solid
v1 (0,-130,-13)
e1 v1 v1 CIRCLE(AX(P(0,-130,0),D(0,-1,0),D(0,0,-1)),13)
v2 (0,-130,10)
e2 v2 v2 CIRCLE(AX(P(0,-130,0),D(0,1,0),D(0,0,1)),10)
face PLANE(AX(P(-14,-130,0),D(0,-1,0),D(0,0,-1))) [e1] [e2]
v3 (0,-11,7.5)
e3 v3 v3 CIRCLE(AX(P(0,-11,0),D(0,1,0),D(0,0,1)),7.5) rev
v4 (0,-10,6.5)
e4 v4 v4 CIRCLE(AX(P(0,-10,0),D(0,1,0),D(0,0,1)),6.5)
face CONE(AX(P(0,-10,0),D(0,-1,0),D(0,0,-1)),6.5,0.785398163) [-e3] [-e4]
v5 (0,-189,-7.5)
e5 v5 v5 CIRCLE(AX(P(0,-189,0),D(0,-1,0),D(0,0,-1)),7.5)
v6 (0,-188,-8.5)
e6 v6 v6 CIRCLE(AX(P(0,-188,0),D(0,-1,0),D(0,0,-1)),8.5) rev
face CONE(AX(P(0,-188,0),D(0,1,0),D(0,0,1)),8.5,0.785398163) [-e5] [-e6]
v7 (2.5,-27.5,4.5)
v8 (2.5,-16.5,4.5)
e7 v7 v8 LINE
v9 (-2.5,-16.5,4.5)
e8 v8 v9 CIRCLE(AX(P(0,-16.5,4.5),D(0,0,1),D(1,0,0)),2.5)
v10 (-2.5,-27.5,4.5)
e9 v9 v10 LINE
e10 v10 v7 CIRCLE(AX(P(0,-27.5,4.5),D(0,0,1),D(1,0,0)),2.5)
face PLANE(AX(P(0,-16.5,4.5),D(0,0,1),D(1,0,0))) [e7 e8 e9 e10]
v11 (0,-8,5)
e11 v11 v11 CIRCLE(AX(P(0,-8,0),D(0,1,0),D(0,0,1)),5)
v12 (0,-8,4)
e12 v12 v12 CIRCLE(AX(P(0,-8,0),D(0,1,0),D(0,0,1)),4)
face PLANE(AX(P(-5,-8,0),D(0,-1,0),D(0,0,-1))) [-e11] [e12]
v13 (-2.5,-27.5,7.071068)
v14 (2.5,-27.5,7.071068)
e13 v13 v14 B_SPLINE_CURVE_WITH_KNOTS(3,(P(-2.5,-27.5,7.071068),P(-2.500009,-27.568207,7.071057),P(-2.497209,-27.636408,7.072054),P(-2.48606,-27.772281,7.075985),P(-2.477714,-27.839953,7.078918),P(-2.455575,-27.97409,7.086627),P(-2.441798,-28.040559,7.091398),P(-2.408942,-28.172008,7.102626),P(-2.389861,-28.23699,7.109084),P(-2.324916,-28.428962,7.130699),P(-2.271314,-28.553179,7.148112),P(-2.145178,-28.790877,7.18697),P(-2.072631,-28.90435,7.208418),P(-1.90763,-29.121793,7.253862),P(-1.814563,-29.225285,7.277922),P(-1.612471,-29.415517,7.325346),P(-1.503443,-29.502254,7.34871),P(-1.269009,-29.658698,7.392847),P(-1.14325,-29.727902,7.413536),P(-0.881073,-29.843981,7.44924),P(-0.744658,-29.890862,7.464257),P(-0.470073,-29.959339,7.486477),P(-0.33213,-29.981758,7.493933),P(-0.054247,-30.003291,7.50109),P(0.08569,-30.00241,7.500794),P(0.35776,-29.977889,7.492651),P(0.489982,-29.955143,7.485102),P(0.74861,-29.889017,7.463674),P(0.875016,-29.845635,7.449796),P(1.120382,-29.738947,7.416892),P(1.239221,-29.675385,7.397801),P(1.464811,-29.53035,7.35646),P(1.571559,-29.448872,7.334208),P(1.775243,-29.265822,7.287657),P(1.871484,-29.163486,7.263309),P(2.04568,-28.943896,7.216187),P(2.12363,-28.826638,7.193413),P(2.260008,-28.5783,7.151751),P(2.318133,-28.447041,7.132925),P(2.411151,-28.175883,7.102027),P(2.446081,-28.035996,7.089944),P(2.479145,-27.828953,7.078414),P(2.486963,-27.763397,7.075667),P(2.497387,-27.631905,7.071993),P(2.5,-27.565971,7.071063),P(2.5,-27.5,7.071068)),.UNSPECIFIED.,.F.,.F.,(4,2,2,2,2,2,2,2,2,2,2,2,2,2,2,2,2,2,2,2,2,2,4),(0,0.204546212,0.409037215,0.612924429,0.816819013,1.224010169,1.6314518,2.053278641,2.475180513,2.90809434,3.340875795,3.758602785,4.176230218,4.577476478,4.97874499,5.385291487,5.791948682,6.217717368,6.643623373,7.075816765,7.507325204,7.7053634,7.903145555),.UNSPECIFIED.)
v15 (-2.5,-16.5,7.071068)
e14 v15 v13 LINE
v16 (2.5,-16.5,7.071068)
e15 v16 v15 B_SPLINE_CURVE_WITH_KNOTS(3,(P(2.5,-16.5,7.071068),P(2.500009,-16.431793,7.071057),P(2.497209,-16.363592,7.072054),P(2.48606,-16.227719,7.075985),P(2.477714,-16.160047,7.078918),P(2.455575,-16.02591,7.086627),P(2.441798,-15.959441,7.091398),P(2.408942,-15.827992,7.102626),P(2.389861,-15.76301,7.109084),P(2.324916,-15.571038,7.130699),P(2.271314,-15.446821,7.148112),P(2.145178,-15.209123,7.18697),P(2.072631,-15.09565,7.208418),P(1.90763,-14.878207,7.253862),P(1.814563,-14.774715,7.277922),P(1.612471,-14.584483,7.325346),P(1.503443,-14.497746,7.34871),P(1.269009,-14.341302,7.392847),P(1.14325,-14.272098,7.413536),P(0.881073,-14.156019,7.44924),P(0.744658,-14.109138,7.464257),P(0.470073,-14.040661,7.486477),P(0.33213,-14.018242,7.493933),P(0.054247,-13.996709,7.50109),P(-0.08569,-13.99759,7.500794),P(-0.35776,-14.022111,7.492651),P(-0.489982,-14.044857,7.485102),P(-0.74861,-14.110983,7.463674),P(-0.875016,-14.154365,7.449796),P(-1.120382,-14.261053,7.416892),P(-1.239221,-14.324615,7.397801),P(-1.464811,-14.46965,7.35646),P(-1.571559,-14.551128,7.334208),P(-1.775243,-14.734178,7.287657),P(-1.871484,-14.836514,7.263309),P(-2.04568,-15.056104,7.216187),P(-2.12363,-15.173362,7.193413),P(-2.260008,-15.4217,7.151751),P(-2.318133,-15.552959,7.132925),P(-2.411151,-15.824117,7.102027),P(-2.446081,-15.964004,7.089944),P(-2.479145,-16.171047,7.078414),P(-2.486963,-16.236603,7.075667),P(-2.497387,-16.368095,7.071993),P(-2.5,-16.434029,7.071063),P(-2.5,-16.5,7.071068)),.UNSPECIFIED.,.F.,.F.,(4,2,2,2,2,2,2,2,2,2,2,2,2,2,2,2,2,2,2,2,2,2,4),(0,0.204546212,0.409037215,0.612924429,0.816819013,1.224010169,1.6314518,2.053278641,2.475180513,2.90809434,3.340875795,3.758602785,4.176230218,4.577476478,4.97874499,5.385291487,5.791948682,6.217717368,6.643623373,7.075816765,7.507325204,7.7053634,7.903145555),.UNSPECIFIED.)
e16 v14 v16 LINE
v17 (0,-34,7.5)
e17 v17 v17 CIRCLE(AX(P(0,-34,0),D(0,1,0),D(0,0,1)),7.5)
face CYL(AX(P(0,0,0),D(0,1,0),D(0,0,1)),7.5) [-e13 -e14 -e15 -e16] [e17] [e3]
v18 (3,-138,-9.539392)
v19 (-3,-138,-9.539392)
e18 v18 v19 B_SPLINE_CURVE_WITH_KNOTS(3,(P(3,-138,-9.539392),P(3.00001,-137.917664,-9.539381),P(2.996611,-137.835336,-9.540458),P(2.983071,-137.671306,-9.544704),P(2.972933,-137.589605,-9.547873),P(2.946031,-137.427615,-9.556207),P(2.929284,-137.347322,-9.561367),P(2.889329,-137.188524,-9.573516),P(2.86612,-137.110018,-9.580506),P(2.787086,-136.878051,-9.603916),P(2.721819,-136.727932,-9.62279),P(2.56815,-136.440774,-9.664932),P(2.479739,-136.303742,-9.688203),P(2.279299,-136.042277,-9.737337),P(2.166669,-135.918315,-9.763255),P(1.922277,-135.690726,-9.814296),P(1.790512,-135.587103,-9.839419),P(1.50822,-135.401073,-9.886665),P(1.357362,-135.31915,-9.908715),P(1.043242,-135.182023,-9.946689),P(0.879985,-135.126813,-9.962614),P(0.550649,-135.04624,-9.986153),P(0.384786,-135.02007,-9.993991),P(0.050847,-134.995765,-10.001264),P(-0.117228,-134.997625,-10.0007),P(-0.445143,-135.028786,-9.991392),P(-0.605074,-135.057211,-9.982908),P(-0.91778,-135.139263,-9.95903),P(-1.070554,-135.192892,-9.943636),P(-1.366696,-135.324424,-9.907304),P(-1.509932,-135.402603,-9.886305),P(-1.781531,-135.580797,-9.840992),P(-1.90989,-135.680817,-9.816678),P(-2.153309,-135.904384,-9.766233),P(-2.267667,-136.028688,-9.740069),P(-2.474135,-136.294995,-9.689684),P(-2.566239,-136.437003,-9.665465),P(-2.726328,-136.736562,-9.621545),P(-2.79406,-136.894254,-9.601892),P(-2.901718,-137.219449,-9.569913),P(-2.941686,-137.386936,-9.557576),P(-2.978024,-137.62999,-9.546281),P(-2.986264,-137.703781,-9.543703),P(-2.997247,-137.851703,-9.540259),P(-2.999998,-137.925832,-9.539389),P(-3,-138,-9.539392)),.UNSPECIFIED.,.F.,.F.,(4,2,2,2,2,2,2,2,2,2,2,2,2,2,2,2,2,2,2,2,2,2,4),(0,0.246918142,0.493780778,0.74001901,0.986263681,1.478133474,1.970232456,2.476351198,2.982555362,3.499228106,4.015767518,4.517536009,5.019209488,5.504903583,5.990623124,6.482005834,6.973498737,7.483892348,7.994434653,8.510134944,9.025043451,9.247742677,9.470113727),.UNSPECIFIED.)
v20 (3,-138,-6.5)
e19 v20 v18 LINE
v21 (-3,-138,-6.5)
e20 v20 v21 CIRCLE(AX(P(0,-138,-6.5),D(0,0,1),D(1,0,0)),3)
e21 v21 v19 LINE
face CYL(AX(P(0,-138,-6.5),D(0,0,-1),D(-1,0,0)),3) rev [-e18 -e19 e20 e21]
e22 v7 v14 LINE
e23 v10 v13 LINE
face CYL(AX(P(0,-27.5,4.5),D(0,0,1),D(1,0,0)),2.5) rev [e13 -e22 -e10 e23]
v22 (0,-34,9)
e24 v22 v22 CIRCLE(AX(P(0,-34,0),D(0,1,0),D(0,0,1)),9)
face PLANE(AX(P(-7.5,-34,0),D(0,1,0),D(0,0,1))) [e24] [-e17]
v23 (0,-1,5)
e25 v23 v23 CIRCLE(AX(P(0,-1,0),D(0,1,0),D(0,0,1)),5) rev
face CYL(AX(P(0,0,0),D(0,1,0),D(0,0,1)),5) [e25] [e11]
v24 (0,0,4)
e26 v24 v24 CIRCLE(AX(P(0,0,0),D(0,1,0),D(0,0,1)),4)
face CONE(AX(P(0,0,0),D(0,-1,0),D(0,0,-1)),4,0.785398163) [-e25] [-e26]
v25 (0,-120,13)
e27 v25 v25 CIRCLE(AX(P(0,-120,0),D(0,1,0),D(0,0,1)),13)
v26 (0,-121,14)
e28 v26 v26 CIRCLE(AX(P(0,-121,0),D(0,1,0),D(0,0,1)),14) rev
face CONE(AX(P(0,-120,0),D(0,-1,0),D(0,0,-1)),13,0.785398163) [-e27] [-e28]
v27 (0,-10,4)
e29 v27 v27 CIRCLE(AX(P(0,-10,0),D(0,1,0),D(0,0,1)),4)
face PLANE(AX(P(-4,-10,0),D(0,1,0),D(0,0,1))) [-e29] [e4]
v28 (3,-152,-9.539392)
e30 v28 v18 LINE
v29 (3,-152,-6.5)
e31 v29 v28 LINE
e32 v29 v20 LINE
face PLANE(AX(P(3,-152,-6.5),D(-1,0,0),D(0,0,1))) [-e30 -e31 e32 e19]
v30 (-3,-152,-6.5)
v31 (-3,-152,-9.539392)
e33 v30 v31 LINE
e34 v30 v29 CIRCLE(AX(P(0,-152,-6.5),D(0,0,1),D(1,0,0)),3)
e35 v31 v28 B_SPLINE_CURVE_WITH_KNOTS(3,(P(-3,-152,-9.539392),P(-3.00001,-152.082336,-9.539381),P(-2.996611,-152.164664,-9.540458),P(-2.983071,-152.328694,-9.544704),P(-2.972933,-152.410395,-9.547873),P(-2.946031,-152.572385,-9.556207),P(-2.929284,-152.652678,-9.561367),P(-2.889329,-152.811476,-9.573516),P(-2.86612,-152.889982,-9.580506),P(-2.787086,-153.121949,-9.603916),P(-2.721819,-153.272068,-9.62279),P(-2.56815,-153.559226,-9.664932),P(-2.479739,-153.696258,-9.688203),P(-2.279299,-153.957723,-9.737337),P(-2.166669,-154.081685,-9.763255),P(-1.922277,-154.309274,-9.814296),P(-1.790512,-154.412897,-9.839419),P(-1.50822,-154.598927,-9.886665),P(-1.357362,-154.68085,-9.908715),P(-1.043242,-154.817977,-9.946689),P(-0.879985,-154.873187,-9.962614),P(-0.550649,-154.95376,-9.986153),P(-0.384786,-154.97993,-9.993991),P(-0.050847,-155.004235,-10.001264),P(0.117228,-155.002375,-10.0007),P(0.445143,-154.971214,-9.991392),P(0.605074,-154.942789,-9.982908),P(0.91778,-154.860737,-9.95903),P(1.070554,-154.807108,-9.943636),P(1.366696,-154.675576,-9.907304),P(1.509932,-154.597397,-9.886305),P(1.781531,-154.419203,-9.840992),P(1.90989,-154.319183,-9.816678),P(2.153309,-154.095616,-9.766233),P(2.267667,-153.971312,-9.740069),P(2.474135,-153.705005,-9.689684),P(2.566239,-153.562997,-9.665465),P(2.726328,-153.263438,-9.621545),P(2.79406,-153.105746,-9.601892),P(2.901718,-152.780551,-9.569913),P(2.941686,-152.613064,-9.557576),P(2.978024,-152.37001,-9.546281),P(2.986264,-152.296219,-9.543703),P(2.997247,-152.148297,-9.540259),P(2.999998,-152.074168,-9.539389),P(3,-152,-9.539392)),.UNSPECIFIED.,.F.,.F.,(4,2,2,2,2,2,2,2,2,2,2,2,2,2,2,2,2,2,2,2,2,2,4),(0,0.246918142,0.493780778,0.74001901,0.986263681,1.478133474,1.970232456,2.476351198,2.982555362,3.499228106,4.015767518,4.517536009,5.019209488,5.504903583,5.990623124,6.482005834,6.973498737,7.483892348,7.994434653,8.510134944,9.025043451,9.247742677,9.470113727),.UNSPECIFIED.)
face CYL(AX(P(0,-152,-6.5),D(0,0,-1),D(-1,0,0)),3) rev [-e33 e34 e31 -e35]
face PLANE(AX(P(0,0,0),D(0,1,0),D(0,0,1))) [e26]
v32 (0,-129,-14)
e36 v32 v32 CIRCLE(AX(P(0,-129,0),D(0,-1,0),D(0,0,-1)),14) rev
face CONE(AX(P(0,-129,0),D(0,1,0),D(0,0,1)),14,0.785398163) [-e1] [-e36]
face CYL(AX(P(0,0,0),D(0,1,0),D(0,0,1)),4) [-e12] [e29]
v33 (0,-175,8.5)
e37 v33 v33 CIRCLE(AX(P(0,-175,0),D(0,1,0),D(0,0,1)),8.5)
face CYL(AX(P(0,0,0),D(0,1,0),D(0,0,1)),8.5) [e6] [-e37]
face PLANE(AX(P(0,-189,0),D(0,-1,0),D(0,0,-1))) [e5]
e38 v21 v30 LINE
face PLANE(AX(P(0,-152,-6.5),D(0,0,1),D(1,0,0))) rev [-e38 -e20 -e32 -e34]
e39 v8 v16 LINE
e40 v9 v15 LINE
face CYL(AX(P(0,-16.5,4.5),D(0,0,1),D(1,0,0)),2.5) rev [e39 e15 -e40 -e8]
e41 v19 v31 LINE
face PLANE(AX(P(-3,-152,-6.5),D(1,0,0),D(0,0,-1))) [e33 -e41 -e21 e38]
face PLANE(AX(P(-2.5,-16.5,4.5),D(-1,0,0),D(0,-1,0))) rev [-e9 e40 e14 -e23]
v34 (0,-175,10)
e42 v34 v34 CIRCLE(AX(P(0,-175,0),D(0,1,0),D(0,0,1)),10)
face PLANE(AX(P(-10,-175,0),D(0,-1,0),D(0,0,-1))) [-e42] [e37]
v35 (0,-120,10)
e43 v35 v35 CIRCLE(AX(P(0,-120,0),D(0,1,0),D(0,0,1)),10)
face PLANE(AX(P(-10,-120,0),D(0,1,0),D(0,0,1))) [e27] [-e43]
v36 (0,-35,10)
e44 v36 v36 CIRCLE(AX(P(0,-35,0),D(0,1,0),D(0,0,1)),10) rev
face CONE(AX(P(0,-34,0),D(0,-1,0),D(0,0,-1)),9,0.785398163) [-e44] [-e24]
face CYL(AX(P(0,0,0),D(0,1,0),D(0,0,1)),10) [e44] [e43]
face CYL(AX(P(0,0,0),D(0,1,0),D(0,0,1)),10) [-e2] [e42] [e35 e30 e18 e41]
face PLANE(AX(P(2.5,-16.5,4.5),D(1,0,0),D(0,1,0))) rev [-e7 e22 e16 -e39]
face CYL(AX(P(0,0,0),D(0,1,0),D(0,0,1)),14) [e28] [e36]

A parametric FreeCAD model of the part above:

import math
import FreeCAD as App
import Part
import Sketcher
Q = App.Units.Quantity


def edges_at(feature, points):
    """Names of the edges that pass closest to the given points."""
    edges = feature.Shape.Edges
    near = lambda p: min(range(len(edges)), key=lambda i: edges[i].distToShape(Part.Vertex(*p))[0])
    return sorted({f"Edge{near(p) + 1}" for p in points})

doc = App.newDocument("Part")
body = doc.addObject("PartDesign::Body", "Body")

sketch1 = body.newObject("Sketcher::SketchObject", "Sketch")
sketch1.AttachmentSupport = (doc.getObject("XY_Plane"), [""])
sketch1.MapMode = "FlatFace"
sketch1.addGeometry([
    Part.LineSegment(App.Vector(0, -189, 0), App.Vector(0, 0, 0)),
    Part.LineSegment(App.Vector(0, 0, 0), App.Vector(-5, 0, 0)),
    Part.LineSegment(App.Vector(-5, 0, 0), App.Vector(-5, -8, 0)),
    Part.LineSegment(App.Vector(-5, -8, 0), App.Vector(-4, -8, 0)),
    Part.LineSegment(App.Vector(-4, -8, 0), App.Vector(-4, -10, 0)),
    Part.LineSegment(App.Vector(-4, -10, 0), App.Vector(-7.5, -10, 0)),
    Part.LineSegment(App.Vector(-7.5, -10, 0), App.Vector(-7.5, -34, 0)),
    Part.LineSegment(App.Vector(-7.5, -34, 0), App.Vector(-10, -34, 0)),
    Part.LineSegment(App.Vector(-10, -34, 0), App.Vector(-10, -120, 0)),
    Part.LineSegment(App.Vector(-10, -120, 0), App.Vector(-14, -120, 0)),
    Part.LineSegment(App.Vector(-14, -120, 0), App.Vector(-14, -130, 0)),
    Part.LineSegment(App.Vector(-14, -130, 0), App.Vector(-10, -130, 0)),
    Part.LineSegment(App.Vector(-10, -130, 0), App.Vector(-10, -175, 0)),
    Part.LineSegment(App.Vector(-10, -175, 0), App.Vector(-8.5, -175, 0)),
    Part.LineSegment(App.Vector(-8.5, -175, 0), App.Vector(-8.5, -189, 0)),
    Part.LineSegment(App.Vector(-8.5, -189, 0), App.Vector(0, -189, 0)),
], False)
sketch1.addConstraint([
    Sketcher.Constraint("Coincident", 0, 2, 1, 1),
    Sketcher.Constraint("Coincident", 1, 2, 2, 1),
    Sketcher.Constraint("Coincident", 2, 2, 3, 1),
    Sketcher.Constraint("Coincident", 3, 2, 4, 1),
    Sketcher.Constraint("Coincident", 4, 2, 5, 1),
    Sketcher.Constraint("Coincident", 5, 2, 6, 1),
    Sketcher.Constraint("Coincident", 6, 2, 7, 1),
    Sketcher.Constraint("Coincident", 7, 2, 8, 1),
    Sketcher.Constraint("Coincident", 8, 2, 9, 1),
    Sketcher.Constraint("Coincident", 9, 2, 10, 1),
    Sketcher.Constraint("Coincident", 10, 2, 11, 1),
    Sketcher.Constraint("Coincident", 11, 2, 12, 1),
    Sketcher.Constraint("Coincident", 12, 2, 13, 1),
    Sketcher.Constraint("Coincident", 13, 2, 14, 1),
    Sketcher.Constraint("Coincident", 14, 2, 15, 1),
    Sketcher.Constraint("Coincident", 15, 2, 0, 1),
    Sketcher.Constraint("Vertical", 0),
    Sketcher.Constraint("Horizontal", 1),
    Sketcher.Constraint("Vertical", 2),
    Sketcher.Constraint("Horizontal", 3),
    Sketcher.Constraint("Vertical", 4),
    Sketcher.Constraint("Horizontal", 5),
    Sketcher.Constraint("Vertical", 6),
    Sketcher.Constraint("Horizontal", 7),
    Sketcher.Constraint("Vertical", 8),
    Sketcher.Constraint("Horizontal", 9),
    Sketcher.Constraint("Vertical", 10),
    Sketcher.Constraint("Horizontal", 11),
    Sketcher.Constraint("Vertical", 12),
    Sketcher.Constraint("Horizontal", 13),
    Sketcher.Constraint("Vertical", 14),
    Sketcher.Constraint("Horizontal", 15),
    Sketcher.Constraint("Coincident", 0, 2, -1, 1),
    Sketcher.Constraint("Vertical", 8, 2, 11, 2),
    Sketcher.Constraint("DistanceX", 1, 2, 1, 1, Q("5 mm")),
    Sketcher.Constraint("DistanceX", 3, 1, 3, 2, Q("1 mm")),
    Sketcher.Constraint("DistanceX", 9, 2, 9, 1, Q("4 mm")),
    Sketcher.Constraint("DistanceY", 0, 1, 0, 2, Q("189 mm")),
    Sketcher.Constraint("DistanceY", 2, 2, 2, 1, Q("8 mm")),
    Sketcher.Constraint("DistanceY", 4, 2, 4, 1, Q("2 mm")),
    Sketcher.Constraint("DistanceY", 6, 2, 6, 1, Q("24 mm")),
    Sketcher.Constraint("DistanceY", 8, 2, 8, 1, Q("86 mm")),
    Sketcher.Constraint("DistanceY", 10, 2, 10, 1, Q("10 mm")),
    Sketcher.Constraint("DistanceY", 12, 2, 12, 1, Q("45 mm")),
    Sketcher.Constraint("DistanceX", 5, 2, 5, 1, Q("3.5 mm")),
    Sketcher.Constraint("DistanceX", 7, 2, 7, 1, Q("2.5 mm")),
    Sketcher.Constraint("DistanceX", 13, 1, 13, 2, Q("1.5 mm")),
])
revolution = body.newObject("PartDesign::Revolution", "Revolution")
revolution.Profile = sketch1
revolution.ReferenceAxis = (sketch1, ["V_Axis"])
revolution.Angle = 360
doc.recompute()

chamfer = body.newObject("PartDesign::Chamfer", "Chamfer")
chamfer.Base = (revolution, edges_at(revolution, [
    (0, -189, -8.5),
    (0, -130, -14),
    (0, -120, -14),
    (0, -34, -10),
    (0, -10, -7.5),
    (0, 0, -5),
]))
chamfer.Size = 1

sketch2 = body.newObject("Sketcher::SketchObject", "Sketch001")
sketch2.AttachmentSupport = (doc.getObject("XY_Plane"), [""])
sketch2.MapMode = "FlatFace"
sketch2.AttachmentOffset = App.Placement(App.Vector(0, 0, 7.5), App.Rotation())
sketch2.addGeometry([
    Part.LineSegment(App.Vector(2.5, -27.5, 0), App.Vector(2.5, -16.5, 0)),
    Part.ArcOfCircle(Part.Circle(App.Vector(0, -16.5, 0), App.Vector(0, 0, 1), 2.5), math.radians(0), math.radians(180)),
    Part.LineSegment(App.Vector(-2.5, -16.5, 0), App.Vector(-2.5, -27.5, 0)),
    Part.ArcOfCircle(Part.Circle(App.Vector(0, -27.5, 0), App.Vector(0, 0, 1), 2.5), math.radians(180), math.radians(360)),
], False)
sketch2.addConstraint([
    Sketcher.Constraint("Tangent", 0, 2, 1, 1),
    Sketcher.Constraint("Tangent", 1, 2, 2, 1),
    Sketcher.Constraint("Tangent", 2, 2, 3, 1),
    Sketcher.Constraint("Tangent", 3, 2, 0, 1),
    Sketcher.Constraint("Vertical", 0),
    Sketcher.Constraint("Vertical", 2),
    Sketcher.Constraint("PointOnObject", 1, 3, -2),
    Sketcher.Constraint("Radius", 1, Q("2.5 mm")),
    Sketcher.Constraint("DistanceY", 0, 1, 0, 2, Q("11 mm")),
    Sketcher.Constraint("DistanceY", 1, 3, -1, 1, Q("16.5 mm")),
])
pocket1 = body.newObject("PartDesign::Pocket", "Pocket")
pocket1.Profile = sketch2
pocket1.Length = 3

sketch3 = body.newObject("Sketcher::SketchObject", "Sketch002")
sketch3.AttachmentSupport = (doc.getObject("XY_Plane"), [""])
sketch3.MapMode = "FlatFace"
sketch3.AttachmentOffset = App.Placement(App.Vector(0, 0, -10), App.Rotation())
sketch3.addGeometry([
    Part.LineSegment(App.Vector(-3, -138, 0), App.Vector(-3, -152, 0)),
    Part.ArcOfCircle(Part.Circle(App.Vector(0, -152, 0), App.Vector(0, 0, 1), 3), math.radians(180), math.radians(360)),
    Part.LineSegment(App.Vector(3, -152, 0), App.Vector(3, -138, 0)),
    Part.ArcOfCircle(Part.Circle(App.Vector(0, -138, 0), App.Vector(0, 0, 1), 3), math.radians(0), math.radians(180)),
], False)
sketch3.addConstraint([
    Sketcher.Constraint("Tangent", 0, 2, 1, 1),
    Sketcher.Constraint("Tangent", 1, 2, 2, 1),
    Sketcher.Constraint("Tangent", 2, 2, 3, 1),
    Sketcher.Constraint("Tangent", 3, 2, 0, 1),
    Sketcher.Constraint("Vertical", 0),
    Sketcher.Constraint("Vertical", 2),
    Sketcher.Constraint("PointOnObject", 1, 3, -2),
    Sketcher.Constraint("Radius", 1, Q("3 mm")),
    Sketcher.Constraint("DistanceY", 0, 2, 0, 1, Q("14 mm")),
    Sketcher.Constraint("DistanceY", 1, 3, -1, 1, Q("152 mm")),
])
pocket2 = body.newObject("PartDesign::Pocket", "Pocket001")
pocket2.Profile = sketch3
pocket2.Length = 3.5
pocket2.Reversed = True

doc.recompute()
